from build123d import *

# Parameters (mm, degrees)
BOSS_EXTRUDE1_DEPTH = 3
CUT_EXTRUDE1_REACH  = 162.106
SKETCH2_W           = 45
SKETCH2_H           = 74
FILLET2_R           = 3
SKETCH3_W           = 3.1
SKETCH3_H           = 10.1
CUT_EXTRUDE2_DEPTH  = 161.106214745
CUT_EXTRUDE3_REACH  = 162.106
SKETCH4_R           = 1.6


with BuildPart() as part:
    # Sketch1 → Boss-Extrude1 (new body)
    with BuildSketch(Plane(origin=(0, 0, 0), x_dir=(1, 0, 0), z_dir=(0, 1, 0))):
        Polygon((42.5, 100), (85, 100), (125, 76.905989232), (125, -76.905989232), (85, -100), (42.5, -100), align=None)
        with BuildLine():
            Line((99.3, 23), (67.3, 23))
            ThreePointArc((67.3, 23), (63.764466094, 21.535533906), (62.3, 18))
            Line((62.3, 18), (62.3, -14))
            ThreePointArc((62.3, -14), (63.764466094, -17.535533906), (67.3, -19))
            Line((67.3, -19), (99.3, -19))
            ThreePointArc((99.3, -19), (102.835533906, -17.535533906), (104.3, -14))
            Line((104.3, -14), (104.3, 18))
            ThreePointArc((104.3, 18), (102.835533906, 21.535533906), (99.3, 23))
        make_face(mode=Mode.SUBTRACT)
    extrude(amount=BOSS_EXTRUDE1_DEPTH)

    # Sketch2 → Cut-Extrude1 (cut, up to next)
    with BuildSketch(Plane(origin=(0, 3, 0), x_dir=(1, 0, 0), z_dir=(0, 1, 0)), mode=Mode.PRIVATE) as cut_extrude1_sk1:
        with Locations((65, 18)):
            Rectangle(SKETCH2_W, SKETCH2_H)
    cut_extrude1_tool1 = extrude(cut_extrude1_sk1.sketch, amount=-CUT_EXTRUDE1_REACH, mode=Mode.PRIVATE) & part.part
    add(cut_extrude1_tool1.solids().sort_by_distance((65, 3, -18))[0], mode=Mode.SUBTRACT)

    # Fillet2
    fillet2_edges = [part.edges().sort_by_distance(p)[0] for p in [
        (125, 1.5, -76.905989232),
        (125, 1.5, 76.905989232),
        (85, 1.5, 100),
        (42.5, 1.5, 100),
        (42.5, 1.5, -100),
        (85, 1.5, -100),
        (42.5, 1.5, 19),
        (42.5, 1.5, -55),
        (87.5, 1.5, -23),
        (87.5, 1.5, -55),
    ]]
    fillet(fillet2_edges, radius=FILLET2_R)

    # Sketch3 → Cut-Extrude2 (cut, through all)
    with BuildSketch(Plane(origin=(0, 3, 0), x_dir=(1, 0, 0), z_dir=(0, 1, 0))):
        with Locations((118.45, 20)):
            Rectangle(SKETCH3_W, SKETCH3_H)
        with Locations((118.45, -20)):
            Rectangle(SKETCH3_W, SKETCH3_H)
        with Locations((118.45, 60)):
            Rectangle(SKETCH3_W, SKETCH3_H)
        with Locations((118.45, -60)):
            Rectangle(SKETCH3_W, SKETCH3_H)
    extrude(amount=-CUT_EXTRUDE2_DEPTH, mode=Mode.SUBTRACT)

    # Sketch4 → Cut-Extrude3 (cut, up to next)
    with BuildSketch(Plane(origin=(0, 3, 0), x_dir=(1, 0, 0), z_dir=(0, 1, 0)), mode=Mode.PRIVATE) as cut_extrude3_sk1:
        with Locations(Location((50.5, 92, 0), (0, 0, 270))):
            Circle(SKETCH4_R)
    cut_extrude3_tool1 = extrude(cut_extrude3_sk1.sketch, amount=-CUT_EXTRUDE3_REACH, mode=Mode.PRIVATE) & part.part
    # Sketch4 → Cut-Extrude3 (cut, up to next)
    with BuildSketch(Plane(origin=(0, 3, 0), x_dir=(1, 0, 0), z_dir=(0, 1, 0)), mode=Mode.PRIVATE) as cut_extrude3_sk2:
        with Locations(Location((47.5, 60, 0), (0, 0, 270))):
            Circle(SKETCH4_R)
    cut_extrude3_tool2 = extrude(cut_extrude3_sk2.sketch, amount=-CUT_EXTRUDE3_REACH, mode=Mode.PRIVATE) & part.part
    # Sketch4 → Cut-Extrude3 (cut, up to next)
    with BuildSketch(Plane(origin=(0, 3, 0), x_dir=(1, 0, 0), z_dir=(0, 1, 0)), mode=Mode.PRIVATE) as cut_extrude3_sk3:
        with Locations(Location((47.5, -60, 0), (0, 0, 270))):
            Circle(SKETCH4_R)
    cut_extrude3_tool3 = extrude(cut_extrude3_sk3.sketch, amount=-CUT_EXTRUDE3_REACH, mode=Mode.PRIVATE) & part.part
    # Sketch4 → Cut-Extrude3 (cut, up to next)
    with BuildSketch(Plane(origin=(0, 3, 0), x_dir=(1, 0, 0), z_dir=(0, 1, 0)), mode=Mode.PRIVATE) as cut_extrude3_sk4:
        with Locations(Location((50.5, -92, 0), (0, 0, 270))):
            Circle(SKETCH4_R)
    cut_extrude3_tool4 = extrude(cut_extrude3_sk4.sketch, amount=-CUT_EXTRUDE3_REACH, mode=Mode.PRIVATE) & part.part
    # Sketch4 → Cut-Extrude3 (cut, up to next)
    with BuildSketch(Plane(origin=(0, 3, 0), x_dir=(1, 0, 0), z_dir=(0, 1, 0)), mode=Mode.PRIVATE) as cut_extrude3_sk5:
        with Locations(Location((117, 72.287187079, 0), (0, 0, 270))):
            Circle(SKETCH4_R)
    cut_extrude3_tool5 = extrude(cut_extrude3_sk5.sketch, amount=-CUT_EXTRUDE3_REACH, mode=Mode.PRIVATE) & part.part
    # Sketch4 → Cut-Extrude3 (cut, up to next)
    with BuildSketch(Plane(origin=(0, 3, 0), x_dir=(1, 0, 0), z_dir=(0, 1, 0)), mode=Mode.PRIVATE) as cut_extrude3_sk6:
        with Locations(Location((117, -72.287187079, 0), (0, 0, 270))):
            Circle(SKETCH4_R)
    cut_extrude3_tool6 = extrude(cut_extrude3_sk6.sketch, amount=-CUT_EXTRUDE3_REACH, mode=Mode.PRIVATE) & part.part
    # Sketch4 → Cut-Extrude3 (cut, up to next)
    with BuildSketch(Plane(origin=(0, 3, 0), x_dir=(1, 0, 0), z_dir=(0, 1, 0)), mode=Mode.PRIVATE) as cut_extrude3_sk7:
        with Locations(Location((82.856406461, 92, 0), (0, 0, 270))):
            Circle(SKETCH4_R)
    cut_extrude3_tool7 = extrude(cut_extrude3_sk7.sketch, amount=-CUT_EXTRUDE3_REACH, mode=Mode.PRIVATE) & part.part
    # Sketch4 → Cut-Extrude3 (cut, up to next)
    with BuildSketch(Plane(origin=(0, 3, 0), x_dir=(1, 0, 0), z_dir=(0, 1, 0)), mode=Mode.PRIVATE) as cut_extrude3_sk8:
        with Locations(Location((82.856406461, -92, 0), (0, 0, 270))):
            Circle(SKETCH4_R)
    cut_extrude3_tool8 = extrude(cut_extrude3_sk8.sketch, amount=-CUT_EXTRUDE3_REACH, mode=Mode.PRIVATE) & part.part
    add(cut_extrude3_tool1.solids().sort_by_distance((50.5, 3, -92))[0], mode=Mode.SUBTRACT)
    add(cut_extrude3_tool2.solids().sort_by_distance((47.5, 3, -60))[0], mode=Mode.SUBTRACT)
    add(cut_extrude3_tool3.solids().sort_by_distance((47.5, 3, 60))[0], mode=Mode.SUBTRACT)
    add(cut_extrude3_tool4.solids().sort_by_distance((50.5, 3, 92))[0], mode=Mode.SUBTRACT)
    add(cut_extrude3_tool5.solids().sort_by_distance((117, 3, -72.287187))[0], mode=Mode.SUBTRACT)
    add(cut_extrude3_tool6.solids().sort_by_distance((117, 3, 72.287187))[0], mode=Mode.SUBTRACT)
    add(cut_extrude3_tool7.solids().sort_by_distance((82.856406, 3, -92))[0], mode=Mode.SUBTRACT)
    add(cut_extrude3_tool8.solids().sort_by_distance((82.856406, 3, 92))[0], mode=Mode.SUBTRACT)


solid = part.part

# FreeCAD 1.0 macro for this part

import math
import FreeCAD as App
import Part
import Sketcher

V = App.Vector
Q = App.Units.Quantity


def edges_at(feature, points):
    """Names of the edges that pass closest to the given points."""
    edges = feature.Shape.Edges
    near = lambda p: min(range(len(edges)), key=lambda i: edges[i].distToShape(Part.Vertex(*p))[0])
    return sorted({f"Edge{near(p) + 1}" for p in points})

doc = App.newDocument("Part")
body = doc.addObject("PartDesign::Body", "Body")

sketch1 = body.newObject("Sketcher::SketchObject", "Sketch")
sketch1.AttachmentSupport = (doc.getObject("XZ_Plane"), [""])
sketch1.MapMode = "FlatFace"
sketch1.addGeometry([
    Part.LineSegment(V(85, -100, 0), V(42, -100, 0)),
    Part.LineSegment(V(42, -100, 0), V(42, 100, 0)),
    Part.LineSegment(V(42, 100, 0), V(85, 100, 0)),
    Part.LineSegment(V(85, 100, 0), V(125, 77, 0)),
    Part.LineSegment(V(125, 77, 0), V(125, -77, 0)),
    Part.LineSegment(V(125, -77, 0), V(85, -100, 0)),
    Part.ArcOfCircle(Part.Circle(V(99, -18, 0), V(0, 0, 1), 5), math.radians(-90), math.radians(0)),
    Part.LineSegment(V(104, -18, 0), V(104, 14, 0)),
    Part.ArcOfCircle(Part.Circle(V(99, 14, 0), V(0, 0, 1), 5), math.radians(0), math.radians(90)),
    Part.LineSegment(V(99, 19, 0), V(67, 19, 0)),
    Part.ArcOfCircle(Part.Circle(V(67, 14, 0), V(0, 0, 1), 5), math.radians(90), math.radians(180)),
    Part.LineSegment(V(62, 14, 0), V(62, -18, 0)),
    Part.ArcOfCircle(Part.Circle(V(67, -18, 0), V(0, 0, 1), 5), math.radians(180), math.radians(270)),
    Part.LineSegment(V(67, -23, 0), V(99, -23, 0)),
], False)
sketch1.addConstraint([
    Sketcher.Constraint("Coincident", 0, 2, 1, 1),
    Sketcher.Constraint("Coincident", 1, 2, 2, 1),
    Sketcher.Constraint("Coincident", 2, 2, 3, 1),
    Sketcher.Constraint("Coincident", 3, 2, 4, 1),
    Sketcher.Constraint("Coincident", 4, 2, 5, 1),
    Sketcher.Constraint("Coincident", 5, 2, 0, 1),
    Sketcher.Constraint("Tangent", 6, 2, 7, 1),
    Sketcher.Constraint("Tangent", 7, 2, 8, 1),
    Sketcher.Constraint("Tangent", 8, 2, 9, 1),
    Sketcher.Constraint("Tangent", 9, 2, 10, 1),
    Sketcher.Constraint("Tangent", 10, 2, 11, 1),
    Sketcher.Constraint("Tangent", 11, 2, 12, 1),
    Sketcher.Constraint("Tangent", 12, 2, 13, 1),
    Sketcher.Constraint("Tangent", 13, 2, 6, 1),
    Sketcher.Constraint("Horizontal", 0),
    Sketcher.Constraint("Vertical", 1),
    Sketcher.Constraint("Horizontal", 2),
    Sketcher.Constraint("Vertical", 4),
    Sketcher.Constraint("Vertical", 7),
    Sketcher.Constraint("Horizontal", 9),
    Sketcher.Constraint("Vertical", 11),
    Sketcher.Constraint("Horizontal", 13),
    Sketcher.Constraint("Equal", 6, 8),
    Sketcher.Constraint("Equal", 8, 10),
    Sketcher.Constraint("Equal", 10, 12),
    Sketcher.Constraint("Symmetric", 2, 2, 5, 2, -1),
    Sketcher.Constraint("Equal", 13, 7),
    Sketcher.Constraint("Equal", 3, 5),
    Sketcher.Constraint("Radius", 6, 5.0),
    Sketcher.Constraint("DistanceX", 9, 2, 9, 1, 32.0),
    Sketcher.Constraint("DistanceY", 1, 1, 1, 2, 200.0),
    Sketcher.Constraint("Angle", 3, Q("-30 deg")),
    Sketcher.Constraint("DistanceX", 0, 2, 0, 1, 42.5),
    Sketcher.Constraint("DistanceY", 6, 3, -1, 1, 18.0),
    Sketcher.Constraint("DistanceX", -1, 1, 2, 2, 85.0),
    Sketcher.Constraint("DistanceX", -1, 1, 3, 2, 125.0),
    Sketcher.Constraint("DistanceX", -1, 1, 6, 3, 99.3),
])
pad1 = body.newObject("PartDesign::Pad", "Pad")
pad1.Profile = sketch1
pad1.Length = 3
pad1.Reversed = True

sketch2 = body.newObject("Sketcher::SketchObject", "Sketch001")
sketch2.AttachmentSupport = (doc.getObject("XZ_Plane"), [""])
sketch2.MapMode = "FlatFace"
sketch2.AttachmentOffset = App.Placement(V(0, 0, -3), App.Rotation())
sketch2.addGeometry([
    Part.LineSegment(V(42, -55, 0), V(42, 19, 0)),
    Part.LineSegment(V(42, 19, 0), V(88, 19, 0)),
    Part.LineSegment(V(88, 19, 0), V(88, -55, 0)),
    Part.LineSegment(V(88, -55, 0), V(42, -55, 0)),
], False)
sketch2.addConstraint([
    Sketcher.Constraint("Coincident", 0, 2, 1, 1),
    Sketcher.Constraint("Coincident", 1, 2, 2, 1),
    Sketcher.Constraint("Coincident", 2, 2, 3, 1),
    Sketcher.Constraint("Coincident", 3, 2, 0, 1),
    Sketcher.Constraint("Vertical", 0),
    Sketcher.Constraint("Horizontal", 1),
    Sketcher.Constraint("Vertical", 2),
    Sketcher.Constraint("Horizontal", 3),
    Sketcher.Constraint("DistanceX", 1, 1, 1, 2, 45.0),
    Sketcher.Constraint("DistanceY", 0, 1, 0, 2, 74.0),
    Sketcher.Constraint("DistanceY", -1, 1, 0, 2, 19.0),
    Sketcher.Constraint("DistanceX", -1, 1, 0, 2, 42.5),
])
pocket1 = body.newObject("PartDesign::Pocket", "Pocket")
pocket1.Profile = sketch2
pocket1.Length = 3
pocket1.Reversed = True
doc.recompute()

fillet = body.newObject("PartDesign::Fillet", "Fillet")
fillet.Base = (pocket1, edges_at(pocket1, [
    (125, 1.5, -76.906),
    (125, 1.5, 76.906),
    (85, 1.5, 100),
    (42.5, 1.5, 100),
    (42.5, 1.5, -100),
    (85, 1.5, -100),
    (42.5, 1.5, 19),
    (42.5, 1.5, -55),
    (87.5, 1.5, -23),
    (87.5, 1.5, -55),
]))
fillet.Radius = 3

sketch3 = body.newObject("Sketcher::SketchObject", "Sketch002")
sketch3.AttachmentSupport = (doc.getObject("XZ_Plane"), [""])
sketch3.MapMode = "FlatFace"
sketch3.AttachmentOffset = App.Placement(V(0, 0, -3), App.Rotation())
sketch3.addGeometry([
    Part.LineSegment(V(116.9, -25.1, 0), V(116.9, -14.9, 0)),
    Part.LineSegment(V(116.9, -14.9, 0), V(120, -14.9, 0)),
    Part.LineSegment(V(120, -14.9, 0), V(120, -25.1, 0)),
    Part.LineSegment(V(120, -25.1, 0), V(116.9, -25.1, 0)),
    Part.LineSegment(V(116.9, 14.9, 0), V(116.9, 25.1, 0)),
    Part.LineSegment(V(116.9, 25.1, 0), V(120, 25.1, 0)),
    Part.LineSegment(V(120, 25.1, 0), V(120, 14.9, 0)),
    Part.LineSegment(V(120, 14.9, 0), V(116.9, 14.9, 0)),
    Part.LineSegment(V(116.9, -65, 0), V(116.9, -55, 0)),
    Part.LineSegment(V(116.9, -55, 0), V(120, -55, 0)),
    Part.LineSegment(V(120, -55, 0), V(120, -65, 0)),
    Part.LineSegment(V(120, -65, 0), V(116.9, -65, 0)),
    Part.LineSegment(V(116.9, 55, 0), V(116.9, 65, 0)),
    Part.LineSegment(V(116.9, 65, 0), V(120, 65, 0)),
    Part.LineSegment(V(120, 65, 0), V(120, 55, 0)),
    Part.LineSegment(V(120, 55, 0), V(116.9, 55, 0)),
], False)
sketch3.addConstraint([
    Sketcher.Constraint("Coincident", 0, 2, 1, 1),
    Sketcher.Constraint("Coincident", 1, 2, 2, 1),
    Sketcher.Constraint("Coincident", 2, 2, 3, 1),
    Sketcher.Constraint("Coincident", 3, 2, 0, 1),
    Sketcher.Constraint("Coincident", 4, 2, 5, 1),
    Sketcher.Constraint("Coincident", 5, 2, 6, 1),
    Sketcher.Constraint("Coincident", 6, 2, 7, 1),
    Sketcher.Constraint("Coincident", 7, 2, 4, 1),
    Sketcher.Constraint("Coincident", 8, 2, 9, 1),
    Sketcher.Constraint("Coincident", 9, 2, 10, 1),
    Sketcher.Constraint("Coincident", 10, 2, 11, 1),
    Sketcher.Constraint("Coincident", 11, 2, 8, 1),
    Sketcher.Constraint("Coincident", 12, 2, 13, 1),
    Sketcher.Constraint("Coincident", 13, 2, 14, 1),
    Sketcher.Constraint("Coincident", 14, 2, 15, 1),
    Sketcher.Constraint("Coincident", 15, 2, 12, 1),
    Sketcher.Constraint("Vertical", 0),
    Sketcher.Constraint("Horizontal", 1),
    Sketcher.Constraint("Vertical", 2),
    Sketcher.Constraint("Horizontal", 3),
    Sketcher.Constraint("Vertical", 4),
    Sketcher.Constraint("Horizontal", 5),
    Sketcher.Constraint("Vertical", 6),
    Sketcher.Constraint("Horizontal", 7),
    Sketcher.Constraint("Vertical", 8),
    Sketcher.Constraint("Horizontal", 9),
    Sketcher.Constraint("Vertical", 10),
    Sketcher.Constraint("Horizontal", 11),
    Sketcher.Constraint("Vertical", 12),
    Sketcher.Constraint("Horizontal", 13),
    Sketcher.Constraint("Vertical", 14),
    Sketcher.Constraint("Horizontal", 15),
    Sketcher.Constraint("Symmetric", 3, 2, 4, 2, -1),
    Sketcher.Constraint("Symmetric", 1, 2, 6, 2, -1),
    Sketcher.Constraint("Symmetric", 11, 2, 12, 2, -1),
    Sketcher.Constraint("Symmetric", 9, 2, 14, 2, -1),
    Sketcher.Constraint("Vertical", 7, 2, 8, 2),
    Sketcher.Constraint("Vertical", 6, 2, 9, 2),
    Sketcher.Constraint("Equal", 6, 8),
    Sketcher.Constraint("DistanceX", 1, 1, 1, 2, 3.1),
    Sketcher.Constraint("DistanceY", 0, 1, 0, 2, 10.1),
    Sketcher.Constraint("DistanceX", -1, 1, 1, 2, 120.0),
    Sketcher.Constraint("DistanceY", 0, 2, 4, 2, 40.0),
    Sketcher.Constraint("DistanceY", 8, 2, 0, 2, 40.0),
])
pocket2 = body.newObject("PartDesign::Pocket", "Pocket001")
pocket2.Profile = sketch3
pocket2.Type = "ThroughAll"
pocket2.Reversed = True

sketch4 = body.newObject("Sketcher::SketchObject", "Sketch003")
sketch4.AttachmentSupport = (doc.getObject("XZ_Plane"), [""])
sketch4.MapMode = "FlatFace"
sketch4.AttachmentOffset = App.Placement(V(0, 0, -3), App.Rotation())
sketch4.addGeometry(Part.Circle(V(50.5, -92, 0), V(0, 0, 1), 1.6), False)
sketch4.addConstraint([
    Sketcher.Constraint("Diameter", 0, 3.2),
    Sketcher.Constraint("DistanceY", 0, 3, -1, 1, 92.0),
    Sketcher.Constraint("DistanceX", -1, 1, 0, 3, 50.5),
])
pocket3 = body.newObject("PartDesign::Pocket", "Pocket002")
pocket3.Profile = sketch4
pocket3.Type = "UpToFirst"
pocket3.Reversed = True

sketch5 = body.newObject("Sketcher::SketchObject", "Sketch004")
sketch5.AttachmentSupport = (doc.getObject("XZ_Plane"), [""])
sketch5.MapMode = "FlatFace"
sketch5.AttachmentOffset = App.Placement(V(0, 0, -3), App.Rotation())
sketch5.addGeometry(Part.Circle(V(47.5, -60, 0), V(0, 0, 1), 1.6), False)
sketch5.addConstraint([
    Sketcher.Constraint("Diameter", 0, 3.2),
    Sketcher.Constraint("DistanceY", 0, 3, -1, 1, 60.0),
    Sketcher.Constraint("DistanceX", -1, 1, 0, 3, 47.5),
])
pocket4 = body.newObject("PartDesign::Pocket", "Pocket003")
pocket4.Profile = sketch5
pocket4.Type = "UpToFirst"
pocket4.Reversed = True

sketch6 = body.newObject("Sketcher::SketchObject", "Sketch005")
sketch6.AttachmentSupport = (doc.getObject("XZ_Plane"), [""])
sketch6.MapMode = "FlatFace"
sketch6.AttachmentOffset = App.Placement(V(0, 0, -3), App.Rotation())
sketch6.addGeometry(Part.Circle(V(47.5, 60, 0), V(0, 0, 1), 1.6), False)
sketch6.addConstraint([
    Sketcher.Constraint("Diameter", 0, 3.2),
    Sketcher.Constraint("DistanceY", -1, 1, 0, 3, 60.0),
    Sketcher.Constraint("DistanceX", -1, 1, 0, 3, 47.5),
])
pocket5 = body.newObject("PartDesign::Pocket", "Pocket004")
pocket5.Profile = sketch6
pocket5.Type = "UpToFirst"
pocket5.Reversed = True

sketch7 = body.newObject("Sketcher::SketchObject", "Sketch006")
sketch7.AttachmentSupport = (doc.getObject("XZ_Plane"), [""])
sketch7.MapMode = "FlatFace"
sketch7.AttachmentOffset = App.Placement(V(0, 0, -3), App.Rotation())
sketch7.addGeometry(Part.Circle(V(50.5, 92, 0), V(0, 0, 1), 1.6), False)
sketch7.addConstraint([
    Sketcher.Constraint("Diameter", 0, 3.2),
    Sketcher.Constraint("DistanceY", -1, 1, 0, 3, 92.0),
    Sketcher.Constraint("DistanceX", -1, 1, 0, 3, 50.5),
])
pocket6 = body.newObject("PartDesign::Pocket", "Pocket005")
pocket6.Profile = sketch7
pocket6.Type = "UpToFirst"
pocket6.Reversed = True

sketch8 = body.newObject("Sketcher::SketchObject", "Sketch007")
sketch8.AttachmentSupport = (doc.getObject("XZ_Plane"), [""])
sketch8.MapMode = "FlatFace"
sketch8.AttachmentOffset = App.Placement(V(0, 0, -3), App.Rotation())
sketch8.addGeometry(Part.Circle(V(117, -72.3, 0), V(0, 0, 1), 1.6), False)
sketch8.addConstraint([
    Sketcher.Constraint("Diameter", 0, 3.2),
    Sketcher.Constraint("DistanceX", -1, 1, 0, 3, 117.0),
    Sketcher.Constraint("DistanceY", 0, 3, -1, 1, 72.287187),
])
pocket7 = body.newObject("PartDesign::Pocket", "Pocket006")
pocket7.Profile = sketch8
pocket7.Type = "UpToFirst"
pocket7.Reversed = True

sketch9 = body.newObject("Sketcher::SketchObject", "Sketch008")
sketch9.AttachmentSupport = (doc.getObject("XZ_Plane"), [""])
sketch9.MapMode = "FlatFace"
sketch9.AttachmentOffset = App.Placement(V(0, 0, -3), App.Rotation())
sketch9.addGeometry(Part.Circle(V(117, 72.3, 0), V(0, 0, 1), 1.6), False)
sketch9.addConstraint([
    Sketcher.Constraint("Diameter", 0, 3.2),
    Sketcher.Constraint("DistanceX", -1, 1, 0, 3, 117.0),
    Sketcher.Constraint("DistanceY", -1, 1, 0, 3, 72.287187),
])
pocket8 = body.newObject("PartDesign::Pocket", "Pocket007")
pocket8.Profile = sketch9
pocket8.Type = "UpToFirst"
pocket8.Reversed = True

sketch10 = body.newObject("Sketcher::SketchObject", "Sketch009")
sketch10.AttachmentSupport = (doc.getObject("XZ_Plane"), [""])
sketch10.MapMode = "FlatFace"
sketch10.AttachmentOffset = App.Placement(V(0, 0, -3), App.Rotation())
sketch10.addGeometry(Part.Circle(V(82.9, -92, 0), V(0, 0, 1), 1.6), False)
sketch10.addConstraint([
    Sketcher.Constraint("Diameter", 0, 3.2),
    Sketcher.Constraint("DistanceY", 0, 3, -1, 1, 92.0),
    Sketcher.Constraint("DistanceX", -1, 1, 0, 3, 82.856406),
])
pocket9 = body.newObject("PartDesign::Pocket", "Pocket008")
pocket9.Profile = sketch10
pocket9.Type = "UpToFirst"
pocket9.Reversed = True

sketch11 = body.newObject("Sketcher::SketchObject", "Sketch010")
sketch11.AttachmentSupport = (doc.getObject("XZ_Plane"), [""])
sketch11.MapMode = "FlatFace"
sketch11.AttachmentOffset = App.Placement(V(0, 0, -3), App.Rotation())
sketch11.addGeometry(Part.Circle(V(82.9, 92, 0), V(0, 0, 1), 1.6), False)
sketch11.addConstraint([
    Sketcher.Constraint("Diameter", 0, 3.2),
    Sketcher.Constraint("DistanceY", -1, 1, 0, 3, 92.0),
    Sketcher.Constraint("DistanceX", -1, 1, 0, 3, 82.856406),
])
pocket10 = body.newObject("PartDesign::Pocket", "Pocket009")
pocket10.Profile = sketch11
pocket10.Type = "UpToFirst"
pocket10.Reversed = True

doc.recompute()
